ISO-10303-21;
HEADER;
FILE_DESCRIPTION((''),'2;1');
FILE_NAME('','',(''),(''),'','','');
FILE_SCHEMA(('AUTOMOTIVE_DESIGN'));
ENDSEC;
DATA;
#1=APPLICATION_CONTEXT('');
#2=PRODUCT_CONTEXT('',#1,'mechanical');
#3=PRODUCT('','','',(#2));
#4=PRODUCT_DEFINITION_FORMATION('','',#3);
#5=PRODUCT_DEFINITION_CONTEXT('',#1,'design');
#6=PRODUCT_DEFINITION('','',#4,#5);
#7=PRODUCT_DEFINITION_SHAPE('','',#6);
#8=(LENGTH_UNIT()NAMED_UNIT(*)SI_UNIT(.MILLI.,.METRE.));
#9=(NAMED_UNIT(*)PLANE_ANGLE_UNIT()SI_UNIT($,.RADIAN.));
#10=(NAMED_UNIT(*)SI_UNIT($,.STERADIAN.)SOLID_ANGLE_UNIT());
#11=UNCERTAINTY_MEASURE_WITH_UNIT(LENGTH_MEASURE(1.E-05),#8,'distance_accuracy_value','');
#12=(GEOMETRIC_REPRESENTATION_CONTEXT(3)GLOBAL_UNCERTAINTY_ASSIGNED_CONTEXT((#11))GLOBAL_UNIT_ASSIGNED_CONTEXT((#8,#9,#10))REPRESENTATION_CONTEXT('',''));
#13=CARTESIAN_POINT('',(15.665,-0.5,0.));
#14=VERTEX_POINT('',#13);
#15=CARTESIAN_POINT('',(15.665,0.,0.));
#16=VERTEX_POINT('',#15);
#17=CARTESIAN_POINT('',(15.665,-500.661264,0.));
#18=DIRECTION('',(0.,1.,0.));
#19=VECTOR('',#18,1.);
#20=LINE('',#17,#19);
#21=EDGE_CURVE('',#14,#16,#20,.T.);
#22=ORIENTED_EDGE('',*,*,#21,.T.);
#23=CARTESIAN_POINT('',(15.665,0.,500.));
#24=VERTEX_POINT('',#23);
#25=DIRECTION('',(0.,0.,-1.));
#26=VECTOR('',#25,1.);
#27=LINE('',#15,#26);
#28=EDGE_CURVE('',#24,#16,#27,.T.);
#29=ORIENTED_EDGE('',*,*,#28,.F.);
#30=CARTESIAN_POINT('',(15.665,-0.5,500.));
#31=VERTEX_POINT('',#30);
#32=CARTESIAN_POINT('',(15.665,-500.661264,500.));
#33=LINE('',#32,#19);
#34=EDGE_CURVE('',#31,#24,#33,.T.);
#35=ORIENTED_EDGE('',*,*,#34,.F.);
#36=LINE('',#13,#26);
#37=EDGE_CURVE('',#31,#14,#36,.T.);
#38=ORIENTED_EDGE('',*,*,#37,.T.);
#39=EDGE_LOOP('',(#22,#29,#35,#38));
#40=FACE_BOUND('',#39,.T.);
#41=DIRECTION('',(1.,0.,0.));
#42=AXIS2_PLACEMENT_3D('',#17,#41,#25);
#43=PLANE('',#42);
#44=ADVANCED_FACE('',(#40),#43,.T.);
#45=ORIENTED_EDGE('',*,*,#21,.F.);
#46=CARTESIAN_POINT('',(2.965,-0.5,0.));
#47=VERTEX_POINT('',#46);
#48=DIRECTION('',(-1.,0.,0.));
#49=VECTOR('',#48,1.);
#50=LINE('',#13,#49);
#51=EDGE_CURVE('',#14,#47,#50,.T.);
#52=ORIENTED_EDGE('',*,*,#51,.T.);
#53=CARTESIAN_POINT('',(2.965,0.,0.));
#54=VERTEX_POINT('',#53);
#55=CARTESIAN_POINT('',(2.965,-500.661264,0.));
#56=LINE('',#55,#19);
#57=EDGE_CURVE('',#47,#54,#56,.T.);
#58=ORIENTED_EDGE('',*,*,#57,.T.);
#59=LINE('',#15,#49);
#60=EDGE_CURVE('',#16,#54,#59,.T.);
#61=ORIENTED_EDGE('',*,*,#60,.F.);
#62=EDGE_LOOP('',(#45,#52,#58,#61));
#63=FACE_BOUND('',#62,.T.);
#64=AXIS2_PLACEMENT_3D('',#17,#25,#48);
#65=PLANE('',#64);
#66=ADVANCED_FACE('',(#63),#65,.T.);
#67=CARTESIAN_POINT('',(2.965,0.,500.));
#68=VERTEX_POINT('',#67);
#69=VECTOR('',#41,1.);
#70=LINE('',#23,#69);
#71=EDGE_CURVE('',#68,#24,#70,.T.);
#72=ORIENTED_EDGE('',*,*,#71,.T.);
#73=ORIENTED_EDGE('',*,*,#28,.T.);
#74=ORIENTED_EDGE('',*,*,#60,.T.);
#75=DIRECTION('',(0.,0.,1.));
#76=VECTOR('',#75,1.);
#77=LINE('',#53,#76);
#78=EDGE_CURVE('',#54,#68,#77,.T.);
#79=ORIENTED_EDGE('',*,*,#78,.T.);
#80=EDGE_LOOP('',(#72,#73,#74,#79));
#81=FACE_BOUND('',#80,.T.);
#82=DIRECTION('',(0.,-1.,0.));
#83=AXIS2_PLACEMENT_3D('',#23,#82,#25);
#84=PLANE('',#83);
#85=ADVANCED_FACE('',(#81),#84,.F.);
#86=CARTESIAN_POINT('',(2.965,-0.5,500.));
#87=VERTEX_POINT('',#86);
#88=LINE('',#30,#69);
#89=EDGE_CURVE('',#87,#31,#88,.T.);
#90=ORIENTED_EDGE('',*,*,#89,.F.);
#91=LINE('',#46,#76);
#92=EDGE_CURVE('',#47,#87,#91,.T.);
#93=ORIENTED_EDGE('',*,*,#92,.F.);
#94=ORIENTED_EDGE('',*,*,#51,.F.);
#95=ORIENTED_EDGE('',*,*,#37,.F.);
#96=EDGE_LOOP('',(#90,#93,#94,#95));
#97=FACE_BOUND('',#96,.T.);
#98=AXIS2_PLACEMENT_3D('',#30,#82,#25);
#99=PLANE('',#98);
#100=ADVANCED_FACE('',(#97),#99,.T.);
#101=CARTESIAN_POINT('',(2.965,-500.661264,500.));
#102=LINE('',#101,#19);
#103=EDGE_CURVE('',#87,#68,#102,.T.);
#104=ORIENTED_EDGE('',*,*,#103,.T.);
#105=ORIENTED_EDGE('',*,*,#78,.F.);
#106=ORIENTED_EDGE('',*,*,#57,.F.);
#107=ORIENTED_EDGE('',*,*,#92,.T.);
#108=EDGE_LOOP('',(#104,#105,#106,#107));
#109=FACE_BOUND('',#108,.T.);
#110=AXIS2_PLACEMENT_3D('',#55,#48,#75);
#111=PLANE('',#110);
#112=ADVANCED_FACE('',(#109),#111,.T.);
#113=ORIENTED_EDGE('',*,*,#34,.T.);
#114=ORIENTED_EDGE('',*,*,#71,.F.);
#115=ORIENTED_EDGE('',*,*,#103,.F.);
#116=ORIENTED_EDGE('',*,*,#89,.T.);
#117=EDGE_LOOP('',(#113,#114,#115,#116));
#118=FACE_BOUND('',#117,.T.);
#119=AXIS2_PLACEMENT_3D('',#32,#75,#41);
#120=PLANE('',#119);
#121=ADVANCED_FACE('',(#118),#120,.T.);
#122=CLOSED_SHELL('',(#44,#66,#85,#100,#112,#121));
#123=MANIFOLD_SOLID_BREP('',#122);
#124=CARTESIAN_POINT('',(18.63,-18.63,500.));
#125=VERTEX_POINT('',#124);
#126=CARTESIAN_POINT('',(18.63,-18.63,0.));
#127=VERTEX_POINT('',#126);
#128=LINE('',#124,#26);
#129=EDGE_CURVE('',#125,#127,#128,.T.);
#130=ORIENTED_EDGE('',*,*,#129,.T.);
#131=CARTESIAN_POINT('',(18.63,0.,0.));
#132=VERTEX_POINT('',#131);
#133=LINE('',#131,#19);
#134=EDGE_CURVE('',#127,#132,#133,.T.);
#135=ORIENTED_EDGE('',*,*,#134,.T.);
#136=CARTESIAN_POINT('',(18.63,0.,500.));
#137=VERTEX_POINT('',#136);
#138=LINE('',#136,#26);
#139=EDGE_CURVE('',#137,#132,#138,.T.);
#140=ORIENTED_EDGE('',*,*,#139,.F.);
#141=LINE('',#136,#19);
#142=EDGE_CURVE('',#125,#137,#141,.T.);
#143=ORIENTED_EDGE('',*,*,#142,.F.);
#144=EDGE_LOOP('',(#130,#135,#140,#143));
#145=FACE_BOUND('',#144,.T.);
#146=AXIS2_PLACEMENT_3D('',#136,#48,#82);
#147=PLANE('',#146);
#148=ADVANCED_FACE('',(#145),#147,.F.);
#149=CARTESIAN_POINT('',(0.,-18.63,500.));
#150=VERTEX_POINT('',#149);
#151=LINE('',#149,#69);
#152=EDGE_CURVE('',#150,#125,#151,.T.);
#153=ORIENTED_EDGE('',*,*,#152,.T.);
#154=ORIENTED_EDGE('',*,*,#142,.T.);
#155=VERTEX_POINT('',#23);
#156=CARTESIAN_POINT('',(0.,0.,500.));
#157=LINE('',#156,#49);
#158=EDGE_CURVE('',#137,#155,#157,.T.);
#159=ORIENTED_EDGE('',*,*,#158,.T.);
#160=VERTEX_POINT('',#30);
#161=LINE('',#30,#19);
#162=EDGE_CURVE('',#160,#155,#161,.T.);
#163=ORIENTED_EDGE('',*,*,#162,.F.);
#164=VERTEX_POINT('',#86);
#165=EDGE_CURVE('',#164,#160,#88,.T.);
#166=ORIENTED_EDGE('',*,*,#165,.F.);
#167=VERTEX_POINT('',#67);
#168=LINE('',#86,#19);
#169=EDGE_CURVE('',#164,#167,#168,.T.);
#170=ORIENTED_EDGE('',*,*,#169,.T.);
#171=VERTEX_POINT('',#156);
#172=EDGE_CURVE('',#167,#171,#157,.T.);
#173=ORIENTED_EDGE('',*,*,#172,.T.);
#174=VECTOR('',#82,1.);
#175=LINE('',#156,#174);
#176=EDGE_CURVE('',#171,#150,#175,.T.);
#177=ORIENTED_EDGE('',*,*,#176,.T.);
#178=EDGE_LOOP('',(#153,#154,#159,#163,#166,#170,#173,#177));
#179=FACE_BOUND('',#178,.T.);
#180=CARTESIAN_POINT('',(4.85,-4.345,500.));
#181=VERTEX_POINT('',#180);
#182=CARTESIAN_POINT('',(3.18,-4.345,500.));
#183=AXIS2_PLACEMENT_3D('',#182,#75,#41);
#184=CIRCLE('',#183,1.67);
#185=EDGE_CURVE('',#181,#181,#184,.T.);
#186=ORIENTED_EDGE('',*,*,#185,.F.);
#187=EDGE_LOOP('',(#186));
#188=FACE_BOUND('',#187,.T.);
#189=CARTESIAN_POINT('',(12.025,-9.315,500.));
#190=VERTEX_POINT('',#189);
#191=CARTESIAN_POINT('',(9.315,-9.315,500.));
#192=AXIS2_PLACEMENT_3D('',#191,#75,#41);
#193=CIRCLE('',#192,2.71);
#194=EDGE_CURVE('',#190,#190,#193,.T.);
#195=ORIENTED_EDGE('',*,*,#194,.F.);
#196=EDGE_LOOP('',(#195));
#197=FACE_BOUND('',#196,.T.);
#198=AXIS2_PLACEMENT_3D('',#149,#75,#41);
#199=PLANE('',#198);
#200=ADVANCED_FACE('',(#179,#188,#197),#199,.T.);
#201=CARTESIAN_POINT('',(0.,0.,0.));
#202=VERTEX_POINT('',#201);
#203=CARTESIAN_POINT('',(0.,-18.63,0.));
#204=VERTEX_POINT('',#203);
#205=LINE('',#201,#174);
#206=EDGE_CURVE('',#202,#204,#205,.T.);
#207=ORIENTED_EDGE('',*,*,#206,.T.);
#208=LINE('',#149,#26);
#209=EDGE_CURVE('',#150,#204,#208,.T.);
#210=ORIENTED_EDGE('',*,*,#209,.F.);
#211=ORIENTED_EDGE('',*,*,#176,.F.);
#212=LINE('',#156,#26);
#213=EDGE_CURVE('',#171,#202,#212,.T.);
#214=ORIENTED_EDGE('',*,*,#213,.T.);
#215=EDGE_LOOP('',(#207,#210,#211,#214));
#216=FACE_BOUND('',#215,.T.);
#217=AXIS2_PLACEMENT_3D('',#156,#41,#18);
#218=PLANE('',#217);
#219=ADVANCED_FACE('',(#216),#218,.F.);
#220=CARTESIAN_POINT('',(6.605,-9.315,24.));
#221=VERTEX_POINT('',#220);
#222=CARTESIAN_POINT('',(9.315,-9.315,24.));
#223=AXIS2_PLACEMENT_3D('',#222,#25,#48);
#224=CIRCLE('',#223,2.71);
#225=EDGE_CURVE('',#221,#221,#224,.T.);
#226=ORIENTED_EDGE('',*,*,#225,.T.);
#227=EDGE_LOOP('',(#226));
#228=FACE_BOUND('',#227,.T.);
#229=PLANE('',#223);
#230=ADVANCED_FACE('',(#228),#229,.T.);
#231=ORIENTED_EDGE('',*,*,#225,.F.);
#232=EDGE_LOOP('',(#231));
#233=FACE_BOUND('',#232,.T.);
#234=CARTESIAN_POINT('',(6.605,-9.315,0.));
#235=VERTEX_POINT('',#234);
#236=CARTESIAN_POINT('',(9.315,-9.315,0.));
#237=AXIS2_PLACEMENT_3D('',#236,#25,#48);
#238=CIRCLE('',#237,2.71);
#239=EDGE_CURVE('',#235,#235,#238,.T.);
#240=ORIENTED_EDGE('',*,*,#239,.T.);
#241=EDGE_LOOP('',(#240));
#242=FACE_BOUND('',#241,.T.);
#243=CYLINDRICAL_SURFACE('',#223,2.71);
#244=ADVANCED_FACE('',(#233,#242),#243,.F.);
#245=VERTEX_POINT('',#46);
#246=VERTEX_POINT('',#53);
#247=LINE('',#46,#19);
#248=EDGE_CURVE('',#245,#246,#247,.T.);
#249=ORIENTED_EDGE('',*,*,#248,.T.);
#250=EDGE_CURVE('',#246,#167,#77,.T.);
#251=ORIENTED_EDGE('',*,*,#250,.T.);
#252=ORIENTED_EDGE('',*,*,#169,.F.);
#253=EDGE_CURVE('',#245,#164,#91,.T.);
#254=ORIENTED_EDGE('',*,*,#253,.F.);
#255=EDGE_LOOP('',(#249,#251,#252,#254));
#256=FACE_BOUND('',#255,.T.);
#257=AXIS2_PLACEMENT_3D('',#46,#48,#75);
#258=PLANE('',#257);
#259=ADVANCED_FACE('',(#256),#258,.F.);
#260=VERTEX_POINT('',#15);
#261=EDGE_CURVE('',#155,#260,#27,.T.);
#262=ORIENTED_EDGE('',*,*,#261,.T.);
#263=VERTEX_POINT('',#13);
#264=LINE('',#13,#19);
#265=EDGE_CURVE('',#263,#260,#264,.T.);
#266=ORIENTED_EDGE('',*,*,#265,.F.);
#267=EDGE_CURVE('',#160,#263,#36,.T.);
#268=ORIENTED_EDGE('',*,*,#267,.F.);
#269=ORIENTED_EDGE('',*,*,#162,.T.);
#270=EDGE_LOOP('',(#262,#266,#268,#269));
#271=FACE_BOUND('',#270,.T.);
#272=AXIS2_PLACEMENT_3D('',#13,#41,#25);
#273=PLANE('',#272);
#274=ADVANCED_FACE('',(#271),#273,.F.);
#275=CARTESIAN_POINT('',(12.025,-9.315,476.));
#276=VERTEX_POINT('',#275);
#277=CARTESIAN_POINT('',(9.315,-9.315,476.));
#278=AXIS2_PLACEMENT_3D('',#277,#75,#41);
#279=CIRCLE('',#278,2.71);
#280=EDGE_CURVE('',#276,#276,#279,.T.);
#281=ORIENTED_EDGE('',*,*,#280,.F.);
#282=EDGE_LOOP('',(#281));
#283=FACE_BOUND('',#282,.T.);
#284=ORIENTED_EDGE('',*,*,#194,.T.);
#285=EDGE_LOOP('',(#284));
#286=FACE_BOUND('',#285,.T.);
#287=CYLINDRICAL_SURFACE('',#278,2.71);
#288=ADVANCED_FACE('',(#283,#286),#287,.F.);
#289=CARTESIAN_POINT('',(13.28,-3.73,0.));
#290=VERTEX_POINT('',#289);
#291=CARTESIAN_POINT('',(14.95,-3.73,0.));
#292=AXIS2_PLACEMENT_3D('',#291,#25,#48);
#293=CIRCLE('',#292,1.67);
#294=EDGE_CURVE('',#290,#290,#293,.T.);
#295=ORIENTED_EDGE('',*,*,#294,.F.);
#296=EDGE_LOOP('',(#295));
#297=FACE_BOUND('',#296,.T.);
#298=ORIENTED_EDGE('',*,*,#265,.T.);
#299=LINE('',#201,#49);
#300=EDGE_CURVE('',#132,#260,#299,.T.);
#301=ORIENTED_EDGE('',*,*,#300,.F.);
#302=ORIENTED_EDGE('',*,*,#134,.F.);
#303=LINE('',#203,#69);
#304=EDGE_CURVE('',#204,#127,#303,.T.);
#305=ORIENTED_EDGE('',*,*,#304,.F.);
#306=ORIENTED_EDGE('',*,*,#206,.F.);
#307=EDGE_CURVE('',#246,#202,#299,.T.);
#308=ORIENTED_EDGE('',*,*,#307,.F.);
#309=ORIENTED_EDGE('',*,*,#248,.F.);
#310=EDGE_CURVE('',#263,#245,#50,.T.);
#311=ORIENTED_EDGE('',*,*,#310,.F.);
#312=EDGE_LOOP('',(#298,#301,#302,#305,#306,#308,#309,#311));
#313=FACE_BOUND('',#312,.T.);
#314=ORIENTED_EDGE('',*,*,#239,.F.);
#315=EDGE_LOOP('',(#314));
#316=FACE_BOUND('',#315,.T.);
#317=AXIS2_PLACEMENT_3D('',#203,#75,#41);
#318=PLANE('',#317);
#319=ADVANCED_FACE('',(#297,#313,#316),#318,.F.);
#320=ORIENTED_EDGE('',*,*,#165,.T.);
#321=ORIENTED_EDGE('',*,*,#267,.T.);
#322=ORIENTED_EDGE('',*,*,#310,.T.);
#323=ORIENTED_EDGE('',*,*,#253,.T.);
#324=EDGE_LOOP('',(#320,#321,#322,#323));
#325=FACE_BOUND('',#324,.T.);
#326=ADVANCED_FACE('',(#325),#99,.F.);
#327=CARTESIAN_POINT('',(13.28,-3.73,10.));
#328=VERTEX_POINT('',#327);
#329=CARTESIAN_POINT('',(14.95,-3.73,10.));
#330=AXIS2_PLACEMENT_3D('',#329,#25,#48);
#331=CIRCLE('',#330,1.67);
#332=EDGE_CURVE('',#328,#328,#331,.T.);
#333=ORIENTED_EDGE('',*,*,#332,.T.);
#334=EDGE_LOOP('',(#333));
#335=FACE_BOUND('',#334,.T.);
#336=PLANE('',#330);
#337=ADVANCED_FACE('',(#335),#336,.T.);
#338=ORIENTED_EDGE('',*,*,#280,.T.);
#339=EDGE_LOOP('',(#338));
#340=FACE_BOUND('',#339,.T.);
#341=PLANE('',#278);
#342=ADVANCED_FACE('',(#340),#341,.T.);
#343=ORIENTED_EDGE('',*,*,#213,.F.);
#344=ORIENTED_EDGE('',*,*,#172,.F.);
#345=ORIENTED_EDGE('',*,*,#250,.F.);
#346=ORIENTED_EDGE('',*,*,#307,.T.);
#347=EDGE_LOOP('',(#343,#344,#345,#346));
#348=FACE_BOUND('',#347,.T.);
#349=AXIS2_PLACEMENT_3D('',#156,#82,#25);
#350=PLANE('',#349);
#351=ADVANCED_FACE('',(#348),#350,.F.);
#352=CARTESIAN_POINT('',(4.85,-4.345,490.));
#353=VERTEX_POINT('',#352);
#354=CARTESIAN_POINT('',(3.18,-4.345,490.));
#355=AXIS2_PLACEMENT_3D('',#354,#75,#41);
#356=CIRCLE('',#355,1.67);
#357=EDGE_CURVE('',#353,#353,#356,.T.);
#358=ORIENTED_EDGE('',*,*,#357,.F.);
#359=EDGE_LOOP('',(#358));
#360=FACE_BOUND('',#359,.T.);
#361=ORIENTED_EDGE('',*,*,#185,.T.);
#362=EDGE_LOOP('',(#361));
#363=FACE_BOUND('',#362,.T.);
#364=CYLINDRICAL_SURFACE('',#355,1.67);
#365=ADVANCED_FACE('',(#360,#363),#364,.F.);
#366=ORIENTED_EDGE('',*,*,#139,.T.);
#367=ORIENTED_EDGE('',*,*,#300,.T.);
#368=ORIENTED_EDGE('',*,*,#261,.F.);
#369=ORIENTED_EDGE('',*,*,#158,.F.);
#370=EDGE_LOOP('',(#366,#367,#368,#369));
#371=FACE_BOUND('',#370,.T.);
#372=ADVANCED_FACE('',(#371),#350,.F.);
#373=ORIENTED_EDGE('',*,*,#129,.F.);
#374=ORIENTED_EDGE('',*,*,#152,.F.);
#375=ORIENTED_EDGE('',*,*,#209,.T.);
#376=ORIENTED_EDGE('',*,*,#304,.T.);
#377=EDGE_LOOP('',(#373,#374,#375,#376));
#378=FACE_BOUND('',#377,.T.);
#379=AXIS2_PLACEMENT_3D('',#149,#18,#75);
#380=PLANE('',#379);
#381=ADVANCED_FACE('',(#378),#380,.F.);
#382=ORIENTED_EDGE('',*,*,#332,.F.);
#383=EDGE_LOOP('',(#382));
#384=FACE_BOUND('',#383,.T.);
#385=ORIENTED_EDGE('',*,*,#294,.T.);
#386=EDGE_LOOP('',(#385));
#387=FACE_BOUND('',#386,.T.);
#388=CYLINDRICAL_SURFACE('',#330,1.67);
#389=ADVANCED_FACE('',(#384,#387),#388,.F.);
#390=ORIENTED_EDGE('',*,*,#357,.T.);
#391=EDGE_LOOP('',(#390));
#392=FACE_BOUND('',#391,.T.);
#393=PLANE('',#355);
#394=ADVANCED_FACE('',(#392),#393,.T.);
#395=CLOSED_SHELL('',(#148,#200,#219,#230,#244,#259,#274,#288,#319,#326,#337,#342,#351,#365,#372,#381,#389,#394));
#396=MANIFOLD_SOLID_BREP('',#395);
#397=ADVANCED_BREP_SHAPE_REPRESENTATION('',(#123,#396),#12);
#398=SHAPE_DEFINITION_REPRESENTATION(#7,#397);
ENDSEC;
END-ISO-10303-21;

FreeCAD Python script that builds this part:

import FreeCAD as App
import Part
import Sketcher
from FreeCAD import Vector
Q = App.Units.Quantity


def add_polygon(sketch, points):
    """Adds a closed chain of lines whose ends are joined by coincident constraints."""
    first, n = sketch.GeometryCount, len(points)
    for a, b in zip(points, points[1:] + points[:1]):
        sketch.addGeometry(Part.LineSegment(App.Vector(*a, 0), App.Vector(*b, 0)), False)
    for i in range(n):
        sketch.addConstraint(Sketcher.Constraint("Coincident", first + i, 2, first + (i + 1) % n, 1))

doc = App.newDocument("Part")
params = doc.addObject("Spreadsheet::Sheet", "Params")
for row, (alias, value) in enumerate([
    ("sketch1_width", "18.63 mm"),
    ("pad1_length", "500 mm"),
    ("sketch2_diameter", "5.42 mm"),
    ("pocket1_length", "24 mm"),
    ("sketch3_diameter", "5.42 mm"),
    ("pocket2_length", "24 mm"),
    ("sketch4_diameter", "3.34 mm"),
    ("pocket3_length", "10 mm"),
    ("sketch5_diameter", "3.34 mm"),
    ("pocket4_length", "10 mm"),
    ("sketch6_height", "500 mm"),
    ("sketch6_width", "12.7 mm"),
    ("pocket5_length", "0.5 mm"),
    ("sketch7_height", "500 mm"),
    ("sketch7_width", "12.7 mm"),
    ("pad2_length", "0.5 mm"),
], start=1):
    params.set(f"A{row}", alias)
    params.set(f"B{row}", "=" + value)
    params.setAlias(f"B{row}", alias)

body = doc.addObject("PartDesign::Body", "Body")

sketch1 = body.newObject("Sketcher::SketchObject", "Sketch")
sketch1.AttachmentSupport = (doc.getObject("XY_Plane"), [""])
sketch1.MapMode = "FlatFace"
add_polygon(sketch1, [(0, 0), (0, -19), (19, -19), (19, 0)])
sketch1.addConstraint(Sketcher.Constraint("Vertical", 0))
sketch1.addConstraint(Sketcher.Constraint("Horizontal", 1))
sketch1.addConstraint(Sketcher.Constraint("Vertical", 2))
sketch1.addConstraint(Sketcher.Constraint("Horizontal", 3))
sketch1.addConstraint(Sketcher.Constraint("Coincident", 3, 2, -1, 1))
sketch1.addConstraint(Sketcher.Constraint("Equal", 3, 0))
sketch1.addConstraint(Sketcher.Constraint("DistanceX", 1, 1, 1, 2, Q("18.63 mm")))
sketch1.setExpression("Constraints[10]", "Params.sketch1_width")
pad1 = body.newObject("PartDesign::Pad", "Pad")
pad1.Profile = sketch1
pad1.setExpression("Length", "Params.pad1_length")

sketch2 = body.newObject("Sketcher::SketchObject", "Sketch001")
sketch2.AttachmentSupport = (doc.getObject("XY_Plane"), [""])
sketch2.MapMode = "FlatFace"
sketch2.addGeometry(Part.Circle(Vector(9.3, -9.3, 0), Vector(0, 0, 1), 2.7), False)
sketch2.addConstraint(Sketcher.Constraint("Diameter", 0, Q("5.42 mm")))
sketch2.addConstraint(Sketcher.Constraint("DistanceX", -1, 1, 0, 3, Q("9.315 mm")))
sketch2.addConstraint(Sketcher.Constraint("DistanceY", 0, 3, -1, 1, Q("9.315 mm")))
sketch2.setExpression("Constraints[0]", "Params.sketch2_diameter")
pocket1 = body.newObject("PartDesign::Pocket", "Pocket")
pocket1.Profile = sketch2
pocket1.setExpression("Length", "Params.pocket1_length")
pocket1.Reversed = True

sketch3 = body.newObject("Sketcher::SketchObject", "Sketch002")
sketch3.AttachmentSupport = (doc.getObject("XY_Plane"), [""])
sketch3.MapMode = "FlatFace"
sketch3.AttachmentOffset = App.Placement(Vector(0, 0, 500), App.Rotation())
sketch3.addGeometry(Part.Circle(Vector(9.3, -9.3, 0), Vector(0, 0, 1), 2.7), False)
sketch3.addConstraint(Sketcher.Constraint("Diameter", 0, Q("5.42 mm")))
sketch3.addConstraint(Sketcher.Constraint("DistanceX", -1, 1, 0, 3, Q("9.315 mm")))
sketch3.addConstraint(Sketcher.Constraint("DistanceY", 0, 3, -1, 1, Q("9.315 mm")))
sketch3.setExpression("Constraints[0]", "Params.sketch3_diameter")
pocket2 = body.newObject("PartDesign::Pocket", "Pocket001")
pocket2.Profile = sketch3
pocket2.setExpression("Length", "Params.pocket2_length")

sketch4 = body.newObject("Sketcher::SketchObject", "Sketch003")
sketch4.AttachmentSupport = (doc.getObject("XY_Plane"), [""])
sketch4.MapMode = "FlatFace"
sketch4.addGeometry(Part.Circle(Vector(14.9, -3.7, 0), Vector(0, 0, 1), 1.7), False)
sketch4.addConstraint(Sketcher.Constraint("Diameter", 0, Q("3.34 mm")))
sketch4.addConstraint(Sketcher.Constraint("DistanceX", -1, 1, 0, 3, Q("14.95 mm")))
sketch4.addConstraint(Sketcher.Constraint("DistanceY", 0, 3, -1, 1, Q("3.73 mm")))
sketch4.setExpression("Constraints[0]", "Params.sketch4_diameter")
pocket3 = body.newObject("PartDesign::Pocket", "Pocket002")
pocket3.Profile = sketch4
pocket3.setExpression("Length", "Params.pocket3_length")
pocket3.Reversed = True

sketch5 = body.newObject("Sketcher::SketchObject", "Sketch004")
sketch5.AttachmentSupport = (doc.getObject("XY_Plane"), [""])
sketch5.MapMode = "FlatFace"
sketch5.AttachmentOffset = App.Placement(Vector(0, 0, 500), App.Rotation())
sketch5.addGeometry(Part.Circle(Vector(3.2, -4.3, 0), Vector(0, 0, 1), 1.7), False)
sketch5.addConstraint(Sketcher.Constraint("Diameter", 0, Q("3.34 mm")))
sketch5.addConstraint(Sketcher.Constraint("DistanceX", -1, 1, 0, 3, Q("3.18 mm")))
sketch5.addConstraint(Sketcher.Constraint("DistanceY", 0, 3, -1, 1, Q("4.345 mm")))
sketch5.setExpression("Constraints[0]", "Params.sketch5_diameter")
pocket4 = body.newObject("PartDesign::Pocket", "Pocket003")
pocket4.Profile = sketch5
pocket4.setExpression("Length", "Params.pocket4_length")

sketch6 = body.newObject("Sketcher::SketchObject", "Sketch005")
sketch6.AttachmentSupport = (doc.getObject("XZ_Plane"), [""])
sketch6.MapMode = "FlatFace"
add_polygon(sketch6, [(16, 500), (16, 0), (3, 0), (3, 500)])
sketch6.addConstraint(Sketcher.Constraint("Vertical", 0))
sketch6.addConstraint(Sketcher.Constraint("Horizontal", 1))
sketch6.addConstraint(Sketcher.Constraint("Vertical", 2))
sketch6.addConstraint(Sketcher.Constraint("Horizontal", 3))
sketch6.addConstraint(Sketcher.Constraint("PointOnObject", 0, 2, -1))
sketch6.addConstraint(Sketcher.Constraint("DistanceY", 0, 2, 0, 1, Q("500 mm")))
sketch6.addConstraint(Sketcher.Constraint("DistanceX", 1, 2, 1, 1, Q("12.7 mm")))
sketch6.addConstraint(Sketcher.Constraint("DistanceX", -1, 1, 0, 2, Q("15.665 mm")))
sketch6.setExpression("Constraints[9]", "Params.sketch6_height")
sketch6.setExpression("Constraints[10]", "Params.sketch6_width")
pocket5 = body.newObject("PartDesign::Pocket", "Pocket004")
pocket5.Profile = sketch6
pocket5.setExpression("Length", "Params.pocket5_length")
pocket5.Reversed = True
body2 = doc.addObject("PartDesign::Body", "Body001")

sketch7 = body2.newObject("Sketcher::SketchObject", "Sketch006")
sketch7.AttachmentSupport = (doc.getObject("XZ_Plane001"), [""])
sketch7.MapMode = "FlatFace"
add_polygon(sketch7, [(16, 500), (16, 0), (3, 0), (3, 500)])
sketch7.addConstraint(Sketcher.Constraint("Vertical", 0))
sketch7.addConstraint(Sketcher.Constraint("Horizontal", 1))
sketch7.addConstraint(Sketcher.Constraint("Vertical", 2))
sketch7.addConstraint(Sketcher.Constraint("Horizontal", 3))
sketch7.addConstraint(Sketcher.Constraint("PointOnObject", 0, 2, -1))
sketch7.addConstraint(Sketcher.Constraint("DistanceY", 0, 2, 0, 1, Q("500 mm")))
sketch7.addConstraint(Sketcher.Constraint("DistanceX", 1, 2, 1, 1, Q("12.7 mm")))
sketch7.addConstraint(Sketcher.Constraint("DistanceX", -1, 1, 0, 2, Q("15.665 mm")))
sketch7.setExpression("Constraints[9]", "Params.sketch7_height")
sketch7.setExpression("Constraints[10]", "Params.sketch7_width")
pad2 = body2.newObject("PartDesign::Pad", "Pad001")
pad2.Profile = sketch7
pad2.setExpression("Length", "Params.pad2_length")

doc.recompute()
